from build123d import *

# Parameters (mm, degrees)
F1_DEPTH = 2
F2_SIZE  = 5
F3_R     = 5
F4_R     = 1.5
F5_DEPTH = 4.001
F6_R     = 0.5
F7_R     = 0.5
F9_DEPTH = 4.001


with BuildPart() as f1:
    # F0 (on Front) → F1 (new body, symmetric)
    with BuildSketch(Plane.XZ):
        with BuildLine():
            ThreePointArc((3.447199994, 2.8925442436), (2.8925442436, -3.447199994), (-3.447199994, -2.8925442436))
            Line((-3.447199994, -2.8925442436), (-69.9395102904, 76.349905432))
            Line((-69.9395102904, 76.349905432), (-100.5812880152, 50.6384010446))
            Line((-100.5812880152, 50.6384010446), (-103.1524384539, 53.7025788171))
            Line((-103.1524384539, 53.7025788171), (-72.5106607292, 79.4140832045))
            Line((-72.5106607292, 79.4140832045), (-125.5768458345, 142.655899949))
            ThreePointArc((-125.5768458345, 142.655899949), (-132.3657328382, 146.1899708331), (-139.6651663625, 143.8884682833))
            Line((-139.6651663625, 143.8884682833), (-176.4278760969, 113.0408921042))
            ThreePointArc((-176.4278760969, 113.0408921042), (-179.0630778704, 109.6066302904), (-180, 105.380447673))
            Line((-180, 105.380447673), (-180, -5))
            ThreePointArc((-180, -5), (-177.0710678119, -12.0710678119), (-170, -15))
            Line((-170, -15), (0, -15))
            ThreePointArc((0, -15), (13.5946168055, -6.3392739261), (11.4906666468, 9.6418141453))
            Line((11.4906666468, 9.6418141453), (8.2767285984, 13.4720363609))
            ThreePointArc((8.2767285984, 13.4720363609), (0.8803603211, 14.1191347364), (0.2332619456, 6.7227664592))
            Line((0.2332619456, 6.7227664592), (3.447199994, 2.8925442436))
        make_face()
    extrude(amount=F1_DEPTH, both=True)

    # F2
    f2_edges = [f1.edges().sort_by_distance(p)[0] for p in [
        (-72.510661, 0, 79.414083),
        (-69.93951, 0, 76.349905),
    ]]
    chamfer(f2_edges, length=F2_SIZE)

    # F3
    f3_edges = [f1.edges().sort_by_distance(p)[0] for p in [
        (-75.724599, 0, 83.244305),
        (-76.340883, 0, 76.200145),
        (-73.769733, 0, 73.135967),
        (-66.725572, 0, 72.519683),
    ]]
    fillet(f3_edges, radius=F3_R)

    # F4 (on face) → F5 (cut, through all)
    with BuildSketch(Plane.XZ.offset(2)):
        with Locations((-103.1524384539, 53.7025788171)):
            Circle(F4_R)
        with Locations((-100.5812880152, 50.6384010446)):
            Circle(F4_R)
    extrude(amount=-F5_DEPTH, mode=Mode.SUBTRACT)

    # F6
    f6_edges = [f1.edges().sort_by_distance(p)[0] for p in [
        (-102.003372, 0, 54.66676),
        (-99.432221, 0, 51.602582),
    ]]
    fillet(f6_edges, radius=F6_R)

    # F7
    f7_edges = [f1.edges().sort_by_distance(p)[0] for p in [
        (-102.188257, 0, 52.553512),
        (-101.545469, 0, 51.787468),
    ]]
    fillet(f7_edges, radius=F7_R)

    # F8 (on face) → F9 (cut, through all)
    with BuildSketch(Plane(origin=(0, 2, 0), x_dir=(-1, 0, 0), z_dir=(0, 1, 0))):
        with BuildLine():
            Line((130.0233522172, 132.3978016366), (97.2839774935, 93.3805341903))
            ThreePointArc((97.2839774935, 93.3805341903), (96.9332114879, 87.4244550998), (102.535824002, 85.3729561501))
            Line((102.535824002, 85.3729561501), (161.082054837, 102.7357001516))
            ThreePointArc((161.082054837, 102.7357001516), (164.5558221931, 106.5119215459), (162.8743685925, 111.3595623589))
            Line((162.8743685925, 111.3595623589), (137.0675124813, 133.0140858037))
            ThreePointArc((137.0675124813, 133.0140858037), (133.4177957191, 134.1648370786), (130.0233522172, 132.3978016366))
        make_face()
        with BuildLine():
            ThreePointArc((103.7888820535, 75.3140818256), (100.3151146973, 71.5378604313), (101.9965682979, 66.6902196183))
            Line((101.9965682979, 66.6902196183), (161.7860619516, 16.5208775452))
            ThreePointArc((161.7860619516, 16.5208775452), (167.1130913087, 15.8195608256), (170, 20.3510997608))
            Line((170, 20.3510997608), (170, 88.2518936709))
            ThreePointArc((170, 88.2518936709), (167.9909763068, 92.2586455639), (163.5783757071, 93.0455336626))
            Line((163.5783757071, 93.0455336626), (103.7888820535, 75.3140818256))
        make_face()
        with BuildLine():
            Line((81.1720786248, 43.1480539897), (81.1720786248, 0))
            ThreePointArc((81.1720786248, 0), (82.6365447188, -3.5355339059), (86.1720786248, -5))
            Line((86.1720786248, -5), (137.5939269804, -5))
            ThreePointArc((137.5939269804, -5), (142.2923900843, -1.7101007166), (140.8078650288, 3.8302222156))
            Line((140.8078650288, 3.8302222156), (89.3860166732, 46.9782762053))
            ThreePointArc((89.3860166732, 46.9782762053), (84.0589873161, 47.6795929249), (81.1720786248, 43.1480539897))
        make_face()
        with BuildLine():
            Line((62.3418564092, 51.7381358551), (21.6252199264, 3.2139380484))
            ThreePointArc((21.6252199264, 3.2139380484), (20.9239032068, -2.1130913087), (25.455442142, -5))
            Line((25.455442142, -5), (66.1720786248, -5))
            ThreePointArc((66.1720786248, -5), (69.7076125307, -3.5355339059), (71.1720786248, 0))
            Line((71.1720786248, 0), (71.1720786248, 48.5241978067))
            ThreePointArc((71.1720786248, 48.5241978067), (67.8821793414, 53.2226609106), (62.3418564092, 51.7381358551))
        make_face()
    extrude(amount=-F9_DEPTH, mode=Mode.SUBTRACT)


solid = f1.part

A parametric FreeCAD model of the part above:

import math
import FreeCAD as App
import Part
import Sketcher
from FreeCAD import Vector
Q = App.Units.Quantity


def edges_at(feature, points):
    """Names of the edges that pass closest to the given points."""
    edges = feature.Shape.Edges
    near = lambda p: min(range(len(edges)), key=lambda i: edges[i].distToShape(Part.Vertex(*p))[0])
    return sorted({f"Edge{near(p) + 1}" for p in points})

doc = App.newDocument("Part")
body = doc.addObject("PartDesign::Body", "Body")

# Sketch on XZ plane
sketch1 = body.newObject("Sketcher::SketchObject", "Sketch")
sketch1.AttachmentSupport = (doc.getObject("XZ_Plane"), [""])
sketch1.MapMode = "FlatFace"
sketch1.addGeometry([
    Part.ArcOfCircle(Part.Circle(Vector(0, 0, 0), Vector(0, 0, 1), 4.5), math.radians(-140), math.radians(40)),  # 0
    Part.LineSegment(Vector(-3.4, -2.9, 0), Vector(-69.9, 76.3, 0)),  # 1
    Part.LineSegment(Vector(-69.9, 76.3, 0), Vector(-100.6, 50.6, 0)),  # 2
    Part.LineSegment(Vector(-100.6, 50.6, 0), Vector(-103.2, 53.7, 0)),  # 3
    Part.LineSegment(Vector(-103.2, 53.7, 0), Vector(-72.5, 79.4, 0)),  # 4
    Part.LineSegment(Vector(-72.5, 79.4, 0), Vector(-125.6, 142.7, 0)),  # 5
    Part.ArcOfCircle(Part.Circle(Vector(-133.2, 136.2, 0), Vector(0, 0, 1), 10), math.radians(40), math.radians(130)),  # 6
    Part.LineSegment(Vector(-139.7, 143.9, 0), Vector(-176.4, 113, 0)),  # 7
    Part.ArcOfCircle(Part.Circle(Vector(-170, 105.4, 0), Vector(0, 0, 1), 10), math.radians(130), math.radians(180)),  # 8
    Part.LineSegment(Vector(-180, 105.4, 0), Vector(-180, -5, 0)),  # 9
    Part.ArcOfCircle(Part.Circle(Vector(-170, -5, 0), Vector(0, 0, 1), 10), math.radians(180), math.radians(270)),  # 10
    Part.LineSegment(Vector(-170, -15, 0), Vector(0, -15, 0)),  # 11
    Part.ArcOfCircle(Part.Circle(Vector(0, 0, 0), Vector(0, 0, 1), 15), math.radians(-90), math.radians(40)),  # 12
    Part.LineSegment(Vector(11.5, 9.6, 0), Vector(8.3, 13.5, 0)),  # 13
    Part.ArcOfCircle(Part.Circle(Vector(4.3, 10.1, 0), Vector(0, 0, 1), 5.2), math.radians(40), math.radians(220)),  # 14
    Part.LineSegment(Vector(0.2, 6.7, 0), Vector(3.4, 2.9, 0)),  # 15
], False)
sketch1.addConstraint([
    Sketcher.Constraint("Tangent", 0, 1, 1, 1),
    Sketcher.Constraint("Coincident", 1, 2, 2, 1),
    Sketcher.Constraint("Coincident", 2, 2, 3, 1),
    Sketcher.Constraint("Coincident", 3, 2, 4, 1),
    Sketcher.Constraint("Coincident", 4, 2, 5, 1),
    Sketcher.Constraint("Tangent", 5, 2, 6, 1),
    Sketcher.Constraint("Tangent", 6, 2, 7, 1),
    Sketcher.Constraint("Tangent", 7, 2, 8, 1),
    Sketcher.Constraint("Tangent", 8, 2, 9, 1),
    Sketcher.Constraint("Tangent", 9, 2, 10, 1),
    Sketcher.Constraint("Tangent", 10, 2, 11, 1),
    Sketcher.Constraint("Tangent", 11, 2, 12, 1),
    Sketcher.Constraint("Tangent", 12, 2, 13, 1),
    Sketcher.Constraint("Tangent", 13, 2, 14, 1),
    Sketcher.Constraint("Tangent", 14, 2, 15, 1),
    Sketcher.Constraint("Tangent", 15, 2, 0, 2),
    Sketcher.Constraint("Vertical", 9),
    Sketcher.Constraint("Horizontal", 11),
    Sketcher.Constraint("Coincident", 0, 3, -1, 1),
    Sketcher.Constraint("Coincident", 12, 3, -1, 1),
    Sketcher.Constraint("Equal", 6, 8),
    Sketcher.Constraint("Equal", 8, 10),
    Sketcher.Constraint("Perpendicular", 1, 2),
    Sketcher.Constraint("Perpendicular", 2, 3),
    Sketcher.Constraint("Perpendicular", 3, 4),
    Sketcher.Constraint("Perpendicular", 4, 5),
    Sketcher.Constraint("Perpendicular", 5, 7),
    Sketcher.Constraint("Perpendicular", 7, 13),
    Sketcher.Constraint("Parallel", 13, 15),
    Sketcher.Constraint("Equal", 2, 4),
    Sketcher.Constraint("Radius", 6, 10.0),
    Sketcher.Constraint("Radius", 12, 15.0),
    Sketcher.Constraint("Radius", 0, 4.5),
    Sketcher.Constraint("DistanceX", 11, 1, 11, 2, 170.0),
    Sketcher.Constraint("Angle", 1, Q("130 deg")),
    Sketcher.Constraint("Distance", 2, 40.0),
    Sketcher.Constraint("Distance", 3, 4.0),
    Sketcher.Constraint("Distance", 13, 5.0),
    Sketcher.Constraint("DistanceY", -1, 1, 2, 2, 50.638401),
    Sketcher.Constraint("DistanceY", -1, 1, 5, 2, 142.6559),
])
pad1 = body.newObject("PartDesign::Pad", "Pad")
pad1.Profile = sketch1
pad1.Length = 4
pad1.Midplane = True
doc.recompute()

chamfer = body.newObject("PartDesign::Chamfer", "Chamfer")
chamfer.Base = (pad1, edges_at(pad1, [(-72.511, 0, 79.414), (-69.94, 0, 76.35)]))
chamfer.Size = 5
doc.recompute()

fillet = body.newObject("PartDesign::Fillet", "Fillet")
fillet.Base = (chamfer, edges_at(chamfer, [
    (-75.725, 0, 83.244),
    (-76.341, 0, 76.2),
    (-73.77, 0, 73.136),
    (-66.726, 0, 72.52),
]))
fillet.Radius = 5

# Sketch on XZ plane
sketch2 = body.newObject("Sketcher::SketchObject", "Sketch001")
sketch2.AttachmentSupport = (doc.getObject("XZ_Plane"), [""])
sketch2.MapMode = "FlatFace"
sketch2.AttachmentOffset = App.Placement(Vector(0, 0, 2), App.Rotation())
sketch2.addGeometry([
    Part.Circle(Vector(-103.2, 53.7, 0), Vector(0, 0, 1), 1.5),
    Part.Circle(Vector(-100.6, 50.6, 0), Vector(0, 0, 1), 1.5),
], False)
sketch2.addConstraint([
    Sketcher.Constraint("Equal", 0, 1),
    Sketcher.Constraint("Diameter", 0, 3.0),
    Sketcher.Constraint("DistanceY", -1, 1, 1, 3, 50.638401),
    Sketcher.Constraint("DistanceX", 0, 3, -1, 1, 103.152438),
    Sketcher.Constraint("DistanceY", -1, 1, 0, 3, 53.702579),
    Sketcher.Constraint("DistanceX", 1, 3, -1, 1, 100.581288),
])
pocket1 = body.newObject("PartDesign::Pocket", "Pocket")
pocket1.Profile = sketch2
pocket1.Type = "ThroughAll"
doc.recompute()

fillet2 = body.newObject("PartDesign::Fillet", "Fillet001")
fillet2.Base = (pocket1, edges_at(pocket1, [(-102.003, 0, 54.667), (-99.432, 0, 51.603)]))
fillet2.Radius = 0.5
doc.recompute()

fillet3 = body.newObject("PartDesign::Fillet", "Fillet002")
fillet3.Base = (fillet2, edges_at(fillet2, [(-102.188, 0, 52.554), (-101.545, 0, 51.787)]))
fillet3.Radius = 0.5

# Sketch on XZ plane
sketch3 = body.newObject("Sketcher::SketchObject", "Sketch002")
sketch3.AttachmentSupport = (doc.getObject("XZ_Plane"), [""])
sketch3.MapMode = "FlatFace"
sketch3.AttachmentOffset = App.Placement(Vector(0, 0, -2), App.Rotation())
sketch3.addGeometry([
    Part.LineSegment(Vector(-130, 132, 0), Vector(-97, 93, 0)),  # 0
    Part.ArcOfCircle(Part.Circle(Vector(-101, 90, 0), Vector(0, 0, 1), 5), math.radians(-107), math.radians(40)),  # 1
    Part.LineSegment(Vector(-103, 85, 0), Vector(-161, 103, 0)),  # 2
    Part.ArcOfCircle(Part.Circle(Vector(-160, 108, 0), Vector(0, 0, 1), 5), math.radians(130), math.radians(253)),  # 3
    Part.LineSegment(Vector(-163, 111, 0), Vector(-137, 133, 0)),  # 4
    Part.ArcOfCircle(Part.Circle(Vector(-134, 129, 0), Vector(0, 0, 1), 5), math.radians(40), math.radians(130)),  # 5
    Part.ArcOfCircle(Part.Circle(Vector(-105, 71, 0), Vector(0, 0, 1), 5), math.radians(-50), math.radians(73)),  # 6
    Part.LineSegment(Vector(-102, 67, 0), Vector(-162, 17, 0)),  # 7
    Part.ArcOfCircle(Part.Circle(Vector(-165, 20, 0), Vector(0, 0, 1), 5), math.radians(180), math.radians(310)),  # 8
    Part.LineSegment(Vector(-170, 20, 0), Vector(-170, 88, 0)),  # 9
    Part.ArcOfCircle(Part.Circle(Vector(-165, 88, 0), Vector(0, 0, 1), 5), math.radians(73), math.radians(180)),  # 10
    Part.LineSegment(Vector(-164, 93, 0), Vector(-104, 75, 0)),  # 11
    Part.LineSegment(Vector(-81, 43, 0), Vector(-81, 0, 0)),  # 12
    Part.ArcOfCircle(Part.Circle(Vector(-86, 0, 0), Vector(0, 0, 1), 5), math.radians(-90), math.radians(0)),  # 13
    Part.LineSegment(Vector(-86, -5, 0), Vector(-138, -5, 0)),  # 14
    Part.ArcOfCircle(Part.Circle(Vector(-138, 0, 0), Vector(0, 0, 1), 5), math.radians(130), math.radians(270)),  # 15
    Part.LineSegment(Vector(-141, 4, 0), Vector(-89, 47, 0)),  # 16
    Part.ArcOfCircle(Part.Circle(Vector(-86, 43, 0), Vector(0, 0, 1), 5), math.radians(0), math.radians(130)),  # 17
    Part.LineSegment(Vector(-62, 52, 0), Vector(-22, 3, 0)),  # 18
    Part.ArcOfCircle(Part.Circle(Vector(-25, 0, 0), Vector(0, 0, 1), 5), math.radians(-90), math.radians(40)),  # 19
    Part.LineSegment(Vector(-25, -5, 0), Vector(-66, -5, 0)),  # 20
    Part.ArcOfCircle(Part.Circle(Vector(-66, 0, 0), Vector(0, 0, 1), 5), math.radians(180), math.radians(270)),  # 21
    Part.LineSegment(Vector(-71, 0, 0), Vector(-71, 49, 0)),  # 22
    Part.ArcOfCircle(Part.Circle(Vector(-66, 49, 0), Vector(0, 0, 1), 5), math.radians(40), math.radians(180)),  # 23
], False)
sketch3.addConstraint([
    Sketcher.Constraint("Tangent", 0, 2, 1, 2),
    Sketcher.Constraint("Tangent", 1, 1, 2, 1),
    Sketcher.Constraint("Tangent", 2, 2, 3, 2),
    Sketcher.Constraint("Tangent", 3, 1, 4, 1),
    Sketcher.Constraint("Tangent", 4, 2, 5, 2),
    Sketcher.Constraint("Tangent", 5, 1, 0, 1),
    Sketcher.Constraint("Tangent", 6, 1, 7, 1),
    Sketcher.Constraint("Tangent", 7, 2, 8, 2),
    Sketcher.Constraint("Tangent", 8, 1, 9, 1),
    Sketcher.Constraint("Tangent", 9, 2, 10, 2),
    Sketcher.Constraint("Tangent", 10, 1, 11, 1),
    Sketcher.Constraint("Tangent", 11, 2, 6, 2),
    Sketcher.Constraint("Tangent", 12, 2, 13, 2),
    Sketcher.Constraint("Tangent", 13, 1, 14, 1),
    Sketcher.Constraint("Tangent", 14, 2, 15, 2),
    Sketcher.Constraint("Tangent", 15, 1, 16, 1),
    Sketcher.Constraint("Tangent", 16, 2, 17, 2),
    Sketcher.Constraint("Tangent", 17, 1, 12, 1),
    Sketcher.Constraint("Tangent", 18, 2, 19, 2),
    Sketcher.Constraint("Tangent", 19, 1, 20, 1),
    Sketcher.Constraint("Tangent", 20, 2, 21, 2),
    Sketcher.Constraint("Tangent", 21, 1, 22, 1),
    Sketcher.Constraint("Tangent", 22, 2, 23, 2),
    Sketcher.Constraint("Tangent", 23, 1, 18, 1),
    Sketcher.Constraint("Vertical", 9),
    Sketcher.Constraint("Vertical", 12),
    Sketcher.Constraint("Horizontal", 14),
    Sketcher.Constraint("Horizontal", 20),
    Sketcher.Constraint("Vertical", 22),
    Sketcher.Constraint("Equal", 1, 3),
    Sketcher.Constraint("Equal", 3, 5),
    Sketcher.Constraint("Equal", 5, 6),
    Sketcher.Constraint("Equal", 6, 8),
    Sketcher.Constraint("Equal", 8, 10),
    Sketcher.Constraint("Equal", 10, 13),
    Sketcher.Constraint("Equal", 13, 15),
    Sketcher.Constraint("Equal", 15, 17),
    Sketcher.Constraint("Equal", 17, 19),
    Sketcher.Constraint("Equal", 19, 21),
    Sketcher.Constraint("Equal", 21, 23),
    Sketcher.Constraint("PointOnObject", 13, 3, -1),
    Sketcher.Constraint("PointOnObject", 19, 3, -1),
    Sketcher.Constraint("Perpendicular", 0, 4),
    Sketcher.Constraint("Parallel", 4, 7),
    Sketcher.Constraint("Parallel", 2, 11),
    Sketcher.Constraint("Parallel", 7, 16),
    Sketcher.Constraint("Perpendicular", 16, 18),
    Sketcher.Constraint("Radius", 1, 5.0),
    Sketcher.Constraint("Angle", 0, Q("-50 deg")),
    Sketcher.Constraint("DistanceX", 8, 3, -1, 1, 165.0),
    Sketcher.Constraint("DistanceX", 13, 3, 21, 3, 20.0),
    Sketcher.Constraint("DistanceX", 14, 2, 14, 1, 51.421848),
    Sketcher.Constraint("DistanceX", 1, 3, -1, 1, 101.1142),
    Sketcher.Constraint("DistanceY", -1, 1, 8, 3, 20.3511),
    Sketcher.Constraint("DistanceY", -1, 1, 2, 2, 102.7357),
    Sketcher.Constraint("DistanceY", -1, 1, 5, 1, 132.397802),
    Sketcher.Constraint("DistanceY", 6, 3, 3, 3, 37.008898),
    Sketcher.Constraint("DistanceY", 23, 3, 1, 3, 41.642398),
    Sketcher.Constraint("DistanceX", 0, 2, 17, 3, 11.111899),
    Sketcher.Constraint("Distance", 2, 61.06657),
])
pocket2 = body.newObject("PartDesign::Pocket", "Pocket001")
pocket2.Profile = sketch3
pocket2.Type = "ThroughAll"
pocket2.Reversed = True

doc.recompute()
